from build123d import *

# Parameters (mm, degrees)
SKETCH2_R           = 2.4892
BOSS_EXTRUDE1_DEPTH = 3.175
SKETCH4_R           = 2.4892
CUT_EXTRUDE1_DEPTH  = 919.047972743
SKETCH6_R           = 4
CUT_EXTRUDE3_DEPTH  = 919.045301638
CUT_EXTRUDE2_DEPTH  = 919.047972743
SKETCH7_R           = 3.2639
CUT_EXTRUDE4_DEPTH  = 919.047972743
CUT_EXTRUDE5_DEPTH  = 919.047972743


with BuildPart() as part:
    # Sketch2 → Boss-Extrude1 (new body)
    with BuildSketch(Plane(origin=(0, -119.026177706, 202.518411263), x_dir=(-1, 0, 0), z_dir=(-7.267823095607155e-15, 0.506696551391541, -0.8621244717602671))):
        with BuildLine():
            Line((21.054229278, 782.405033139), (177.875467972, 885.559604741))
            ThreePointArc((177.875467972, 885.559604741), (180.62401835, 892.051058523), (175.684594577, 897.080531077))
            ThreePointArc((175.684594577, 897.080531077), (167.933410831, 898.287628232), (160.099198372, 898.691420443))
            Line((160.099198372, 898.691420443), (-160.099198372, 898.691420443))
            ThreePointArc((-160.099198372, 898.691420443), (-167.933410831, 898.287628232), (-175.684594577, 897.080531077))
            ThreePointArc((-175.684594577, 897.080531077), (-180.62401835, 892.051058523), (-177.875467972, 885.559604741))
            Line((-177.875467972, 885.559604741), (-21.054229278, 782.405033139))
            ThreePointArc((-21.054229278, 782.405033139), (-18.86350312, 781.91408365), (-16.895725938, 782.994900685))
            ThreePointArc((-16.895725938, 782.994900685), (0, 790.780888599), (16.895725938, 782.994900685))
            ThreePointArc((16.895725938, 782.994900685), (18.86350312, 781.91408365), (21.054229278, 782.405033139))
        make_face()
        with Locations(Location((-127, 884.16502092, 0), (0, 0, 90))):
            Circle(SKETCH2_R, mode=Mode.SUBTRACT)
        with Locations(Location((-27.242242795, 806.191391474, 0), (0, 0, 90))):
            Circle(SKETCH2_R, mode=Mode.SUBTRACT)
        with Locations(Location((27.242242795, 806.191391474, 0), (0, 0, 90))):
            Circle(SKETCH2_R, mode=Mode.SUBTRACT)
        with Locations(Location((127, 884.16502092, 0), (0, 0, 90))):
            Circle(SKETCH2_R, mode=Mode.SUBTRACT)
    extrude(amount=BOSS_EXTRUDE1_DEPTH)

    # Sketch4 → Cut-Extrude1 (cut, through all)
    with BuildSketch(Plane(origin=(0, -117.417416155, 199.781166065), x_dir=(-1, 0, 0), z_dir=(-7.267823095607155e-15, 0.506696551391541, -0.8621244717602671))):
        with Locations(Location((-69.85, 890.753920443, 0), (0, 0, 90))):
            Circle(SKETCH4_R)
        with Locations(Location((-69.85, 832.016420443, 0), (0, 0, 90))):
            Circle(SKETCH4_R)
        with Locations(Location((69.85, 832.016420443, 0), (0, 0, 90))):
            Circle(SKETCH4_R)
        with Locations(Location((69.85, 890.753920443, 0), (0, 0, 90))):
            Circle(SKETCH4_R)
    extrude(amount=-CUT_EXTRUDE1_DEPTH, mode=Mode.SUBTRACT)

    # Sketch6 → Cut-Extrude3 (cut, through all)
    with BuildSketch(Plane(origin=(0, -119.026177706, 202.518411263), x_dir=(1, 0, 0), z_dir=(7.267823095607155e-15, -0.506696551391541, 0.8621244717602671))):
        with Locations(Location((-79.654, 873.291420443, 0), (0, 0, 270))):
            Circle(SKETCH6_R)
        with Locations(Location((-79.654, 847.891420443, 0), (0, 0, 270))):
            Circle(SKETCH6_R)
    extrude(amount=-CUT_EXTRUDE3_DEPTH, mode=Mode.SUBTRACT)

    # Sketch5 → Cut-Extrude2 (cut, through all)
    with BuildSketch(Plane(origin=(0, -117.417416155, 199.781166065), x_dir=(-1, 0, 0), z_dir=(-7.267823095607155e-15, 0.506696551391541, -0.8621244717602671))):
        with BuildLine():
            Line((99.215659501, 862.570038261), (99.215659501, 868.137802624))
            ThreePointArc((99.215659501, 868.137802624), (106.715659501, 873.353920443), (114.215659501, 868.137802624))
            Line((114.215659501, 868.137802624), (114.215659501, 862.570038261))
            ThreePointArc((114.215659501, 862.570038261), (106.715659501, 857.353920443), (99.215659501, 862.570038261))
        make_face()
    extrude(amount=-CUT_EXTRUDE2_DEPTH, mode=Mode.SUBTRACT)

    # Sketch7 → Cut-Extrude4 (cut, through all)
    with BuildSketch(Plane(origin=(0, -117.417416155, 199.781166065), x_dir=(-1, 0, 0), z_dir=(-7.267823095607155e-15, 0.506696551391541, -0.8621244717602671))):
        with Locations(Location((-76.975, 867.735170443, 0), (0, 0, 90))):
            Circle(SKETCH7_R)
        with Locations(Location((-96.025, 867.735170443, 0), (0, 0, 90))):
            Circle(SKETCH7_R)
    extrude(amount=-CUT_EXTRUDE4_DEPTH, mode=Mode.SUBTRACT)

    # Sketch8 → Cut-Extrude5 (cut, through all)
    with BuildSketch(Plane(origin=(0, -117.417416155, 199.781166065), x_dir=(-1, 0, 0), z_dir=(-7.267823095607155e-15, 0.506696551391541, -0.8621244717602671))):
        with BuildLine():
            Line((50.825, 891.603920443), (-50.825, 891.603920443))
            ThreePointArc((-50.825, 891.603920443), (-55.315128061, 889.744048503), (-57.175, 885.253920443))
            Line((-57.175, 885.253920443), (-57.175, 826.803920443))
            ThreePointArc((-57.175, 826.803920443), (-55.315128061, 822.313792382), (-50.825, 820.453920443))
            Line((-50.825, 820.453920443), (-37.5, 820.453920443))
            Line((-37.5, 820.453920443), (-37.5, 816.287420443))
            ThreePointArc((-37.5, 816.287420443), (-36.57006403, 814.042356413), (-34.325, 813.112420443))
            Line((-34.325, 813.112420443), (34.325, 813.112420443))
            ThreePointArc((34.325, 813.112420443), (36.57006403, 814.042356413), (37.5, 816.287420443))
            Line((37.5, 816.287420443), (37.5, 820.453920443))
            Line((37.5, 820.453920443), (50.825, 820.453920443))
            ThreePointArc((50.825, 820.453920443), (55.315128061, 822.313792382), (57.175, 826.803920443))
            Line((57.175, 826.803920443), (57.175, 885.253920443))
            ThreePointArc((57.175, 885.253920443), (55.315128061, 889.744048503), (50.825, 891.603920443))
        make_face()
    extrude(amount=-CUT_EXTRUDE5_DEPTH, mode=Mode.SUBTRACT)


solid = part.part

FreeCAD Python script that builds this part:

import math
import FreeCAD as App
import Part
import Sketcher

V = App.Vector
Q = App.Units.Quantity

doc = App.newDocument("Part")
params = doc.addObject("Spreadsheet::Sheet", "Params")
for row, (alias, value) in enumerate([
    ("sketch1_radius", "3 in"),
    ("sketch1_radius2", "0.25 in"),
    ("sketch1_diameter", "0.196 in"),
    ("sketch1_radius3", "0.125 in"),
    ("sketch1_radius4", "0.875 in"),
    ("pad1_length", "0.125 in"),
    ("sketch2_diameter", "0.196 in"),
    ("sketch5_diameter", "0.257 in"),
    ("sketch6_radius", "0.25 in"),
    ("sketch6_radius2", "0.125 in"),
], start=1):
    params.set(f"A{row}", alias)
    params.set(f"B{row}", "=" + value)
    params.setAlias(f"B{row}", alias)

body = doc.addObject("PartDesign::Body", "Body")

# Sketch on an angled plane
sketch1 = body.newObject("Sketcher::SketchObject", "Sketch")
sketch1.Placement = App.Placement(V(0, -119.026178, 202.518411), App.Rotation(V(-1, 0, 0), V(0, 0.862124472, 0.506696551), V(0, 0.506696551, -0.862124472), "ZXY"))
sketch1.addGeometry([
    Part.LineSegment(V(21.1, 782.4, 0), V(177.9, 885.6, 0)),  # 0
    Part.ArcOfCircle(Part.Circle(V(174.4, 890.9, 0), V(0, 0, 1), 6.3), math.radians(-57), math.radians(78)),  # 1
    Part.ArcOfCircle(Part.Circle(V(160.1, 822.5, 0), V(0, 0, 1), 76.2), math.radians(78.2), math.radians(90)),  # 2
    Part.LineSegment(V(160.1, 898.7, 0), V(-160.1, 898.7, 0)),  # 3
    Part.ArcOfCircle(Part.Circle(V(-160.1, 822.5, 0), V(0, 0, 1), 76.2), math.radians(90), math.radians(101.8)),  # 4
    Part.ArcOfCircle(Part.Circle(V(-174.4, 890.9, 0), V(0, 0, 1), 6.3), math.radians(102), math.radians(237)),  # 5
    Part.LineSegment(V(-177.9, 885.6, 0), V(-21.1, 782.4, 0)),  # 6
    Part.ArcOfCircle(Part.Circle(V(-19.3, 785.1, 0), V(0, 0, 1), 3.2), math.radians(-123), math.radians(-41)),  # 7
    Part.ArcOfCircle(Part.Circle(V(0, 768.6, 0), V(0, 0, 1), 22.2), math.radians(41), math.radians(139)),  # 8
    Part.ArcOfCircle(Part.Circle(V(19.3, 785.1, 0), V(0, 0, 1), 3.2), math.radians(-139), math.radians(-57)),  # 9
    Part.Circle(V(-27.2, 806.2, 0), V(0, 0, 1), 2.5),  # 10
    Part.Circle(V(27.2, 806.2, 0), V(0, 0, 1), 2.5),  # 11
    Part.Circle(V(-127, 884.2, 0), V(0, 0, 1), 2.5),  # 12
    Part.Circle(V(127, 884.2, 0), V(0, 0, 1), 2.5),  # 13
], False)
sketch1.addConstraint([
    Sketcher.Constraint("Tangent", 0, 2, 1, 1),
    Sketcher.Constraint("Tangent", 1, 2, 2, 1),
    Sketcher.Constraint("Tangent", 2, 2, 3, 1),
    Sketcher.Constraint("Tangent", 3, 2, 4, 1),
    Sketcher.Constraint("Tangent", 4, 2, 5, 1),
    Sketcher.Constraint("Tangent", 5, 2, 6, 1),
    Sketcher.Constraint("Tangent", 6, 2, 7, 1),
    Sketcher.Constraint("Tangent", 7, 2, 8, 2),
    Sketcher.Constraint("Tangent", 8, 1, 9, 1),
    Sketcher.Constraint("Tangent", 9, 2, 0, 1),
    Sketcher.Constraint("Horizontal", 3),
    Sketcher.Constraint("Equal", 2, 4),
    Sketcher.Constraint("Equal", 1, 5),
    Sketcher.Constraint("Equal", 7, 9),
    Sketcher.Constraint("Equal", 10, 11),
    Sketcher.Constraint("Equal", 11, 12),
    Sketcher.Constraint("Equal", 12, 13),
    Sketcher.Constraint("Symmetric", 1, 3, 5, 3, -2),
    Sketcher.Constraint("Symmetric", 7, 3, 9, 3, -2),
    Sketcher.Constraint("Symmetric", 10, 3, 11, 3, -2),
    Sketcher.Constraint("Symmetric", 12, 3, 13, 3, -2),
    Sketcher.Constraint("Radius", 2, Q("3 in")),
    Sketcher.Constraint("Radius", 1, Q("0.25 in")),
    Sketcher.Constraint("Diameter", 10, Q("0.196 in")),
    Sketcher.Constraint("DistanceX", 12, 3, -1, 1, Q("5 in")),
    Sketcher.Constraint("Radius", 7, Q("0.125 in")),
    Sketcher.Constraint("Radius", 8, Q("0.875 in")),
    Sketcher.Constraint("DistanceX", -1, 1, 2, 3, Q("160.099198 mm")),
    Sketcher.Constraint("DistanceX", 7, 3, -1, 1, Q("19.309401 mm")),
    Sketcher.Constraint("DistanceY", -1, 1, 7, 2, Q("782.994901 mm")),
    Sketcher.Constraint("DistanceY", 4, 3, 12, 3, Q("61.6736 mm")),
    Sketcher.Constraint("DistanceX", -1, 1, 1, 3, Q("174.385812 mm")),
    Sketcher.Constraint("DistanceY", -1, 1, 1, 3, Q("890.864772 mm")),
    Sketcher.Constraint("DistanceY", -1, 1, 10, 3, Q("806.191391 mm")),
    Sketcher.Constraint("DistanceX", 10, 3, 7, 3, Q("7.932842 mm")),
])
sketch1.setExpression("Constraints[21]", "Params.sketch1_radius")
sketch1.setExpression("Constraints[22]", "Params.sketch1_radius2")
sketch1.setExpression("Constraints[23]", "Params.sketch1_diameter")
sketch1.setExpression("Constraints[25]", "Params.sketch1_radius3")
sketch1.setExpression("Constraints[26]", "Params.sketch1_radius4")
pad1 = body.newObject("PartDesign::Pad", "Pad")
pad1.Profile = sketch1
pad1.setExpression("Length", "Params.pad1_length")

# Sketch on an angled plane
sketch2 = body.newObject("Sketcher::SketchObject", "Sketch001")
sketch2.Placement = App.Placement(V(0, -117.417416, 199.781166), App.Rotation(V(-1, 0, 0), V(0, 0.862124472, 0.506696551), V(0, 0.506696551, -0.862124472), "ZXY"))
sketch2.addGeometry([
    Part.Circle(V(-69.8, 890.8, 0), V(0, 0, 1), 2.5),
    Part.Circle(V(-69.8, 832, 0), V(0, 0, 1), 2.5),
    Part.Circle(V(69.8, 832, 0), V(0, 0, 1), 2.5),
    Part.Circle(V(69.8, 890.8, 0), V(0, 0, 1), 2.5),
], False)
sketch2.addConstraint([
    Sketcher.Constraint("Equal", 0, 1),
    Sketcher.Constraint("Equal", 1, 2),
    Sketcher.Constraint("Equal", 2, 3),
    Sketcher.Constraint("Symmetric", 1, 3, 2, 3, -2),
    Sketcher.Constraint("Symmetric", 0, 3, 3, 3, -2),
    Sketcher.Constraint("Vertical", 0, 3, 1, 3),
    Sketcher.Constraint("Diameter", 0, Q("0.196 in")),
    Sketcher.Constraint("DistanceX", 1, 3, 2, 3, Q("5.5 in")),
    Sketcher.Constraint("DistanceY", 1, 3, 0, 3, Q("2.3125 in")),
    Sketcher.Constraint("DistanceY", -1, 1, 0, 3, Q("890.75392 mm")),
])
sketch2.setExpression("Constraints[6]", "Params.sketch2_diameter")
pocket1 = body.newObject("PartDesign::Pocket", "Pocket")
pocket1.Profile = sketch2
pocket1.Type = "ThroughAll"

# Sketch on an angled plane
sketch3 = body.newObject("Sketcher::SketchObject", "Sketch002")
sketch3.Placement = App.Placement(V(0, -119.026178, 202.518411), App.Rotation(V(1, 0, 0), V(0, 0.862124472, 0.506696551), V(0, -0.506696551, 0.862124472), "ZXY"))
sketch3.addGeometry([
    Part.Circle(V(-79.7, 873.3, 0), V(0, 0, 1), 4),
    Part.Circle(V(-79.7, 847.9, 0), V(0, 0, 1), 4),
], False)
sketch3.addConstraint([
    Sketcher.Constraint("Equal", 0, 1),
    Sketcher.Constraint("Vertical", 0, 3, 1, 3),
    Sketcher.Constraint("DistanceY", 1, 3, 0, 3, Q("1 in")),
    Sketcher.Constraint("Diameter", 0, Q("8 mm")),
    Sketcher.Constraint("DistanceX", 0, 3, -1, 1, Q("79.654 mm")),
    Sketcher.Constraint("DistanceY", -1, 1, 0, 3, Q("873.29142 mm")),
])
pocket2 = body.newObject("PartDesign::Pocket", "Pocket001")
pocket2.Profile = sketch3
pocket2.Type = "ThroughAll"

# Sketch on an angled plane
sketch4 = body.newObject("Sketcher::SketchObject", "Sketch003")
sketch4.Placement = App.Placement(V(0, -117.417416, 199.781166), App.Rotation(V(-1, 0, 0), V(0, 0.862124472, 0.506696551), V(0, 0.506696551, -0.862124472), "ZXY"))
sketch4.addGeometry([
    Part.LineSegment(V(99, 868, 0), V(99, 863, 0)),
    Part.ArcOfCircle(Part.Circle(V(107, 865, 0), V(0, 0, 1), 8), math.radians(-160), math.radians(-20)),
    Part.LineSegment(V(114, 863, 0), V(114, 868, 0)),
    Part.ArcOfCircle(Part.Circle(V(107, 865, 0), V(0, 0, 1), 8), math.radians(20), math.radians(160)),
], False)
sketch4.addConstraint([
    Sketcher.Constraint("Coincident", 0, 2, 1, 1),
    Sketcher.Constraint("Coincident", 1, 2, 2, 1),
    Sketcher.Constraint("Coincident", 2, 2, 3, 1),
    Sketcher.Constraint("Coincident", 3, 2, 0, 1),
    Sketcher.Constraint("Vertical", 0),
    Sketcher.Constraint("Vertical", 2),
    Sketcher.Constraint("Coincident", 3, 3, 1, 3),
    Sketcher.Constraint("Equal", 1, 3),
    Sketcher.Constraint("Horizontal", 0, 2, 1, 2),
    Sketcher.Constraint("Radius", 1, Q("8 mm")),
    Sketcher.Constraint("DistanceX", 0, 2, 1, 3, Q("7.5 mm")),
    Sketcher.Constraint("DistanceX", -1, 1, 1, 3, Q("106.71566 mm")),
    Sketcher.Constraint("DistanceY", -1, 1, 1, 3, Q("865.35392 mm")),
])
pocket3 = body.newObject("PartDesign::Pocket", "Pocket002")
pocket3.Profile = sketch4
pocket3.Type = "ThroughAll"

# Sketch on an angled plane
sketch5 = body.newObject("Sketcher::SketchObject", "Sketch004")
sketch5.Placement = App.Placement(V(0, -117.417416, 199.781166), App.Rotation(V(-1, 0, 0), V(0, 0.862124472, 0.506696551), V(0, 0.506696551, -0.862124472), "ZXY"))
sketch5.addGeometry([
    Part.Circle(V(-77, 867.7, 0), V(0, 0, 1), 3.3),
    Part.Circle(V(-96, 867.7, 0), V(0, 0, 1), 3.3),
], False)
sketch5.addConstraint([
    Sketcher.Constraint("Equal", 0, 1),
    Sketcher.Constraint("Horizontal", 0, 3, 1, 3),
    Sketcher.Constraint("Diameter", 0, Q("0.257 in")),
    Sketcher.Constraint("DistanceX", 1, 3, 0, 3, Q("0.75 in")),
    Sketcher.Constraint("DistanceX", 0, 3, -1, 1, Q("76.975 mm")),
    Sketcher.Constraint("DistanceY", -1, 1, 0, 3, Q("867.73517 mm")),
])
sketch5.setExpression("Constraints[2]", "Params.sketch5_diameter")
pocket4 = body.newObject("PartDesign::Pocket", "Pocket003")
pocket4.Profile = sketch5
pocket4.Type = "ThroughAll"

# Sketch on an angled plane
sketch6 = body.newObject("Sketcher::SketchObject", "Sketch005")
sketch6.Placement = App.Placement(V(0, -117.417416, 199.781166), App.Rotation(V(-1, 0, 0), V(0, 0.862124472, 0.506696551), V(0, 0.506696551, -0.862124472), "ZXY"))
sketch6.addGeometry([
    Part.LineSegment(V(50.8, 891.6, 0), V(-50.8, 891.6, 0)),  # 0
    Part.ArcOfCircle(Part.Circle(V(-50.8, 885.3, 0), V(0, 0, 1), 6.3), math.radians(90), math.radians(180)),  # 1
    Part.LineSegment(V(-57.2, 885.3, 0), V(-57.2, 826.8, 0)),  # 2
    Part.ArcOfCircle(Part.Circle(V(-50.8, 826.8, 0), V(0, 0, 1), 6.3), math.radians(180), math.radians(270)),  # 3
    Part.LineSegment(V(-50.8, 820.5, 0), V(-37.5, 820.5, 0)),  # 4
    Part.LineSegment(V(-37.5, 820.5, 0), V(-37.5, 816.3, 0)),  # 5
    Part.ArcOfCircle(Part.Circle(V(-34.3, 816.3, 0), V(0, 0, 1), 3.2), math.radians(-180), math.radians(-90)),  # 6
    Part.LineSegment(V(-34.3, 813.1, 0), V(34.3, 813.1, 0)),  # 7
    Part.ArcOfCircle(Part.Circle(V(34.3, 816.3, 0), V(0, 0, 1), 3.2), math.radians(-90), math.radians(0)),  # 8
    Part.LineSegment(V(37.5, 816.3, 0), V(37.5, 820.5, 0)),  # 9
    Part.LineSegment(V(37.5, 820.5, 0), V(50.8, 820.5, 0)),  # 10
    Part.ArcOfCircle(Part.Circle(V(50.8, 826.8, 0), V(0, 0, 1), 6.3), math.radians(-90), math.radians(0)),  # 11
    Part.LineSegment(V(57.2, 826.8, 0), V(57.2, 885.3, 0)),  # 12
    Part.ArcOfCircle(Part.Circle(V(50.8, 885.3, 0), V(0, 0, 1), 6.3), math.radians(0), math.radians(90)),  # 13
], False)
sketch6.addConstraint([
    Sketcher.Constraint("Tangent", 0, 2, 1, 1),
    Sketcher.Constraint("Tangent", 1, 2, 2, 1),
    Sketcher.Constraint("Tangent", 2, 2, 3, 1),
    Sketcher.Constraint("Tangent", 3, 2, 4, 1),
    Sketcher.Constraint("Coincident", 4, 2, 5, 1),
    Sketcher.Constraint("Tangent", 5, 2, 6, 1),
    Sketcher.Constraint("Tangent", 6, 2, 7, 1),
    Sketcher.Constraint("Tangent", 7, 2, 8, 1),
    Sketcher.Constraint("Tangent", 8, 2, 9, 1),
    Sketcher.Constraint("Coincident", 9, 2, 10, 1),
    Sketcher.Constraint("Tangent", 10, 2, 11, 1),
    Sketcher.Constraint("Tangent", 11, 2, 12, 1),
    Sketcher.Constraint("Tangent", 12, 2, 13, 1),
    Sketcher.Constraint("Tangent", 13, 2, 0, 1),
    Sketcher.Constraint("Horizontal", 0),
    Sketcher.Constraint("Vertical", 2),
    Sketcher.Constraint("Horizontal", 4),
    Sketcher.Constraint("Vertical", 5),
    Sketcher.Constraint("Horizontal", 7),
    Sketcher.Constraint("Vertical", 9),
    Sketcher.Constraint("Horizontal", 10),
    Sketcher.Constraint("Vertical", 12),
    Sketcher.Constraint("Equal", 1, 3),
    Sketcher.Constraint("Equal", 6, 8),
    Sketcher.Constraint("Equal", 3, 11),
    Sketcher.Constraint("Equal", 11, 13),
    Sketcher.Constraint("Symmetric", 3, 3, 11, 3, -2),
    Sketcher.Constraint("Equal", 4, 10),
    Sketcher.Constraint("Radius", 1, Q("0.25 in")),
    Sketcher.Constraint("Radius", 6, Q("0.125 in")),
    Sketcher.Constraint("DistanceX", 0, 2, 0, 1, Q("101.65 mm")),
    Sketcher.Constraint("DistanceX", 4, 1, 4, 2, Q("13.325 mm")),
    Sketcher.Constraint("DistanceY", 2, 2, 2, 1, Q("58.45 mm")),
    Sketcher.Constraint("DistanceY", 5, 2, 5, 1, Q("4.1665 mm")),
    Sketcher.Constraint("DistanceY", -1, 1, 6, 3, Q("32.1373 in")),
])
sketch6.setExpression("Constraints[28]", "Params.sketch6_radius")
sketch6.setExpression("Constraints[29]", "Params.sketch6_radius2")
pocket5 = body.newObject("PartDesign::Pocket", "Pocket004")
pocket5.Profile = sketch6
pocket5.Type = "ThroughAll"

doc.recompute()
